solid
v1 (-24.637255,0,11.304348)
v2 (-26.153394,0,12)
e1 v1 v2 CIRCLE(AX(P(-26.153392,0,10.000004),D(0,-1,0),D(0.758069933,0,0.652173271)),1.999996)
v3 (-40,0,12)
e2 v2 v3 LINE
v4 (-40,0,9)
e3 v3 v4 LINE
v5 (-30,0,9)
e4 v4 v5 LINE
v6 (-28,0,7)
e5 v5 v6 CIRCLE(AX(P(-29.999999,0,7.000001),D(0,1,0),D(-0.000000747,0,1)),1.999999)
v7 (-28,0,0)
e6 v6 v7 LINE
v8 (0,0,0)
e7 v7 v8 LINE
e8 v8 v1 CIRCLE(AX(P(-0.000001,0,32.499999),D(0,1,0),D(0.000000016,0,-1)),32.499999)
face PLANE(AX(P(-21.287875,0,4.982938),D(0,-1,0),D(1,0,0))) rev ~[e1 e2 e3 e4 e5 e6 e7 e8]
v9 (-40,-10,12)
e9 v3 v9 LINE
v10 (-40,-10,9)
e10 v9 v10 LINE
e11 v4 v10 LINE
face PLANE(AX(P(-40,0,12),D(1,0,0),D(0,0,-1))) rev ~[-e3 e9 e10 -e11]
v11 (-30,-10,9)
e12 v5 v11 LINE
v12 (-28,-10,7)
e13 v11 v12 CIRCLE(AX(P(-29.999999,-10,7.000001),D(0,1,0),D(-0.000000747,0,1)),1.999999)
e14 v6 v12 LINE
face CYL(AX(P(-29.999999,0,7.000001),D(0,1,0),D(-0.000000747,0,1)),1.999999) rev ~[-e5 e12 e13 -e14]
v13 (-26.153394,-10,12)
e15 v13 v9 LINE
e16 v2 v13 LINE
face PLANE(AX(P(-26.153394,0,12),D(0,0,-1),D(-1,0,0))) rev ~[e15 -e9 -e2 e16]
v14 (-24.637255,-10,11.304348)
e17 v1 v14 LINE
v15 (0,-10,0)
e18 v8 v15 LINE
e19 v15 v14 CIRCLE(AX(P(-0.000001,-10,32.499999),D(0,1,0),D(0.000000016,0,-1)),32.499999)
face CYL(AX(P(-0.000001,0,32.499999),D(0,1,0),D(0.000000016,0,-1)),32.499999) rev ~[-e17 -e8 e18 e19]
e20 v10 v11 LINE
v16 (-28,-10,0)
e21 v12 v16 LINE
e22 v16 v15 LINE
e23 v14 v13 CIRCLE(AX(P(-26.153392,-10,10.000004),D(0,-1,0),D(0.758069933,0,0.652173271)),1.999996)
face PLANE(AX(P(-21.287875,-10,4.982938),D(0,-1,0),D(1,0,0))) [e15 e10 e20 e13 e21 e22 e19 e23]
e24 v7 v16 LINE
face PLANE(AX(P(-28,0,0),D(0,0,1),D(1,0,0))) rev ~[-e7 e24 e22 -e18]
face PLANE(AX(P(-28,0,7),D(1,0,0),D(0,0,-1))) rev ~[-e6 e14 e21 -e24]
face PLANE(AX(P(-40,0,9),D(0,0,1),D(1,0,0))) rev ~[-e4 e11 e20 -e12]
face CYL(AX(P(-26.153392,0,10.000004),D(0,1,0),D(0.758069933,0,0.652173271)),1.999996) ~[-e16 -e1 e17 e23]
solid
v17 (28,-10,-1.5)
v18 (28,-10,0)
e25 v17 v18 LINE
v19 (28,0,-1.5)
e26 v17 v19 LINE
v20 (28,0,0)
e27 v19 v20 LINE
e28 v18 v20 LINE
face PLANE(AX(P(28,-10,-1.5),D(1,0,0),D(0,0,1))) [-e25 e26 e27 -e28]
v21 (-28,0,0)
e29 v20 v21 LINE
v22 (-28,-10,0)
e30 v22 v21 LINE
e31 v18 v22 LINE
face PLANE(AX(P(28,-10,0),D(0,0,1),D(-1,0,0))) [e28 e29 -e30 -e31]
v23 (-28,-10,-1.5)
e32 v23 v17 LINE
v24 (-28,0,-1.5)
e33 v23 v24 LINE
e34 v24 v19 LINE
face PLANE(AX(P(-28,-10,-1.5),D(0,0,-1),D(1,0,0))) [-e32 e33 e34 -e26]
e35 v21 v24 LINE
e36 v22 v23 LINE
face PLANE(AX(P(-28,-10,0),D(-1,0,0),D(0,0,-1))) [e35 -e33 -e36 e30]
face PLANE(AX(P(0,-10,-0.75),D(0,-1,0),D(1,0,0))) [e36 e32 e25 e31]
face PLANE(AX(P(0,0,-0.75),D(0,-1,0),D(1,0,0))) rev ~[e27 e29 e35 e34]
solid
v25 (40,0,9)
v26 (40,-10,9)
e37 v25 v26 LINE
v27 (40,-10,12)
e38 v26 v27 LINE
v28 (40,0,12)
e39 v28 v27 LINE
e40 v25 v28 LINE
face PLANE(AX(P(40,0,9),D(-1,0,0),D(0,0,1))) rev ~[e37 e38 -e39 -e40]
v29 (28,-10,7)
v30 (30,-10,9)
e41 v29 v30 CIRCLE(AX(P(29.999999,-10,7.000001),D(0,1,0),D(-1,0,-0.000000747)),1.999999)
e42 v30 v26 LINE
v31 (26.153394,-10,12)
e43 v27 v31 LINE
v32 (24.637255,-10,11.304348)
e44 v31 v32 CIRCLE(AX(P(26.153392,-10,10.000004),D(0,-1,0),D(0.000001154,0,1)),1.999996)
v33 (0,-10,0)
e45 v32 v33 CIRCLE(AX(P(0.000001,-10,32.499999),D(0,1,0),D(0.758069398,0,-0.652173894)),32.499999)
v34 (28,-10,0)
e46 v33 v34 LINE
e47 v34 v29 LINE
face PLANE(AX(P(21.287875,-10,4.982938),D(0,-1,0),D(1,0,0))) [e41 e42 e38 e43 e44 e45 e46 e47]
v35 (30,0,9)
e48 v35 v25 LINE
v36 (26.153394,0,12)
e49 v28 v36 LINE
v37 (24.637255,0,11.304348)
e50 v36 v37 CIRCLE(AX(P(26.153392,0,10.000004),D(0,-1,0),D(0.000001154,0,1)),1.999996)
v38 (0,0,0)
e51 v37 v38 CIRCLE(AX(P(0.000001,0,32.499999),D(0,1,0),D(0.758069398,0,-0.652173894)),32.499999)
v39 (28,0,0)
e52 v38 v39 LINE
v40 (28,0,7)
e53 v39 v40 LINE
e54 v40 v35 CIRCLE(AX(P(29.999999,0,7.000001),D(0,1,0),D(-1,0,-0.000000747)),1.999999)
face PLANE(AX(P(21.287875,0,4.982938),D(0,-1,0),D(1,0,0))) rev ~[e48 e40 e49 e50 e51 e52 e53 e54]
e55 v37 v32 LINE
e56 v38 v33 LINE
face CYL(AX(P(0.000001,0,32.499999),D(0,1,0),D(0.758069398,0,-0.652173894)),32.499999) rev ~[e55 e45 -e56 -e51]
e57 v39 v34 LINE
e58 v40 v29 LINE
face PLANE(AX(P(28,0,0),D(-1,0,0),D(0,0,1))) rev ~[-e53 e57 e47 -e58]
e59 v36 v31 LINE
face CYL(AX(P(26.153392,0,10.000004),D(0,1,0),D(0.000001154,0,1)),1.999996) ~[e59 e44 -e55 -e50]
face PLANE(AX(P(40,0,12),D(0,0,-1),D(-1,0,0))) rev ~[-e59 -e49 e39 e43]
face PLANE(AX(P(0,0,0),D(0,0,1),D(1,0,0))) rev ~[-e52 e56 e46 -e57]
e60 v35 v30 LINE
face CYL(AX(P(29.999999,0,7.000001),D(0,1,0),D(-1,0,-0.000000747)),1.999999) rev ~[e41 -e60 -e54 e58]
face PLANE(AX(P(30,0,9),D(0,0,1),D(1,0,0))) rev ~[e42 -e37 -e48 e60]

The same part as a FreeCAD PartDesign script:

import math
import FreeCAD as App
import Part
import Sketcher
from FreeCAD import Vector
Q = App.Units.Quantity


def add_polygon(sketch, points):
    """Adds a closed chain of lines whose ends are joined by coincident constraints."""
    first, n = sketch.GeometryCount, len(points)
    for a, b in zip(points, points[1:] + points[:1]):
        sketch.addGeometry(Part.LineSegment(App.Vector(*a, 0), App.Vector(*b, 0)), False)
    for i in range(n):
        sketch.addConstraint(Sketcher.Constraint("Coincident", first + i, 2, first + (i + 1) % n, 1))

doc = App.newDocument("Part")
params = doc.addObject("Spreadsheet::Sheet", "Params")
for row, (alias, value) in enumerate([
    ("sketch1_radius", "1.999999 mm"),
    ("sketch1_radius2", "32.499999 mm"),
    ("sketch1_width", "10 mm"),
    ("sketch1_width2", "28 mm"),
    ("sketch1_height", "3 mm"),
    ("pad1_length", "10 mm"),
    ("sketch2_width", "56 mm"),
    ("sketch2_height", "1.5 mm"),
    ("pad2_length", "10 mm"),
], start=1):
    params.set(f"A{row}", alias)
    params.set(f"B{row}", "=" + value)
    params.setAlias(f"B{row}", alias)

body = doc.addObject("PartDesign::Body", "Body")
body.AllowCompound = True

sketch1 = body.newObject("Sketcher::SketchObject", "Sketch")
sketch1.AttachmentSupport = (doc.getObject("XZ_Plane"), [""])
sketch1.MapMode = "FlatFace"
sketch1.addGeometry(Part.LineSegment(Vector(-26.153394, 12, 0), Vector(-40, 12, 0)), False)
sketch1.addGeometry(Part.LineSegment(Vector(-40, 12, 0), Vector(-40, 9, 0)), False)
sketch1.addGeometry(Part.LineSegment(Vector(-40, 9, 0), Vector(-30, 9, 0)), False)
sketch1.addGeometry(Part.ArcOfCircle(Part.Circle(Vector(-29.999999, 7.000001, 0), Vector(0, 0, 1), 1.999999), math.radians(-0.000043), math.radians(90.000043)), False)
sketch1.addGeometry(Part.LineSegment(Vector(-28, 7, 0), Vector(-28, 0, 0)), False)
sketch1.addGeometry(Part.LineSegment(Vector(-28, 0, 0), Vector(0, 0, 0)), False)
sketch1.addGeometry(Part.ArcOfCircle(Part.Circle(Vector(-0.000001, 32.499999, 0), Vector(0, 0, 1), 32.499999), math.radians(-139.294295), math.radians(-89.999999)), False)
sketch1.addGeometry(Part.ArcOfCircle(Part.Circle(Vector(-26.153392, 10.000004, 0), Vector(0, 0, 1), 1.999996), math.radians(40.705658), math.radians(90.000066)), False)
sketch1.addGeometry(Part.LineSegment(Vector(40, 9, 0), Vector(40, 12, 0)), False)
sketch1.addGeometry(Part.LineSegment(Vector(40, 12, 0), Vector(26.153394, 12, 0)), False)
sketch1.addGeometry(Part.ArcOfCircle(Part.Circle(Vector(26.153392, 10.000004, 0), Vector(0, 0, 1), 1.999996), math.radians(89.999934), math.radians(139.294342)), False)
sketch1.addGeometry(Part.ArcOfCircle(Part.Circle(Vector(0.000001, 32.499999, 0), Vector(0, 0, 1), 32.499999), math.radians(-90.000001), math.radians(-40.705705)), False)
sketch1.addGeometry(Part.LineSegment(Vector(0, 0, 0), Vector(28, 0, 0)), False)
sketch1.addGeometry(Part.LineSegment(Vector(28, 0, 0), Vector(28, 7, 0)), False)
sketch1.addGeometry(Part.ArcOfCircle(Part.Circle(Vector(29.999999, 7.000001, 0), Vector(0, 0, 1), 1.999999), math.radians(89.999957), math.radians(180.000043)), False)
sketch1.addGeometry(Part.LineSegment(Vector(30, 9, 0), Vector(40, 9, 0)), False)
sketch1.addConstraint(Sketcher.Constraint("Coincident", 0, 2, 1, 1))
sketch1.addConstraint(Sketcher.Constraint("Coincident", 1, 2, 2, 1))
sketch1.addConstraint(Sketcher.Constraint("Tangent", 2, 2, 3, 2))
sketch1.addConstraint(Sketcher.Constraint("Tangent", 3, 1, 4, 1))
sketch1.addConstraint(Sketcher.Constraint("Coincident", 4, 2, 5, 1))
sketch1.addConstraint(Sketcher.Constraint("Tangent", 5, 2, 6, 2))
sketch1.addConstraint(Sketcher.Constraint("Tangent", 6, 1, 7, 1))
sketch1.addConstraint(Sketcher.Constraint("Tangent", 7, 2, 0, 1))
sketch1.addConstraint(Sketcher.Constraint("Coincident", 8, 2, 9, 1))
sketch1.addConstraint(Sketcher.Constraint("Tangent", 9, 2, 10, 1))
sketch1.addConstraint(Sketcher.Constraint("Tangent", 10, 2, 11, 2))
sketch1.addConstraint(Sketcher.Constraint("Tangent", 11, 1, 12, 1))
sketch1.addConstraint(Sketcher.Constraint("Coincident", 12, 2, 13, 1))
sketch1.addConstraint(Sketcher.Constraint("Tangent", 13, 2, 14, 2))
sketch1.addConstraint(Sketcher.Constraint("Tangent", 14, 1, 15, 1))
sketch1.addConstraint(Sketcher.Constraint("Coincident", 15, 2, 8, 1))
sketch1.addConstraint(Sketcher.Constraint("Horizontal", 0))
sketch1.addConstraint(Sketcher.Constraint("Vertical", 1))
sketch1.addConstraint(Sketcher.Constraint("Horizontal", 2))
sketch1.addConstraint(Sketcher.Constraint("Vertical", 4))
sketch1.addConstraint(Sketcher.Constraint("Horizontal", 5))
sketch1.addConstraint(Sketcher.Constraint("Vertical", 8))
sketch1.addConstraint(Sketcher.Constraint("Horizontal", 9))
sketch1.addConstraint(Sketcher.Constraint("Horizontal", 12))
sketch1.addConstraint(Sketcher.Constraint("Vertical", 13))
sketch1.addConstraint(Sketcher.Constraint("Horizontal", 15))
sketch1.addConstraint(Sketcher.Constraint("Coincident", 5, 2, -1, 1))
sketch1.addConstraint(Sketcher.Constraint("Coincident", 11, 1, -1, 1))
sketch1.addConstraint(Sketcher.Constraint("Equal", 7, 10))
sketch1.addConstraint(Sketcher.Constraint("Equal", 6, 11))
sketch1.addConstraint(Sketcher.Constraint("Equal", 3, 14))
sketch1.addConstraint(Sketcher.Constraint("Symmetric", 3, 3, 14, 3, -2))
sketch1.addConstraint(Sketcher.Constraint("Symmetric", 0, 2, 8, 2, -2))
sketch1.addConstraint(Sketcher.Constraint("Radius", 3, Q("1.999999 mm")))
sketch1.addConstraint(Sketcher.Constraint("Radius", 6, Q("32.499999 mm")))
sketch1.addConstraint(Sketcher.Constraint("DistanceX", 2, 1, 2, 2, Q("10 mm")))
sketch1.addConstraint(Sketcher.Constraint("DistanceX", 5, 1, 5, 2, Q("28 mm")))
sketch1.addConstraint(Sketcher.Constraint("DistanceY", 1, 2, 1, 1, Q("3 mm")))
sketch1.addConstraint(Sketcher.Constraint("DistanceY", 4, 2, 4, 1, Q("7 mm")))
sketch1.addConstraint(Sketcher.Constraint("Radius", 7, Q("1.999996 mm")))
sketch1.setExpression("Constraints[33]", "Params.sketch1_radius")
sketch1.setExpression("Constraints[34]", "Params.sketch1_radius2")
sketch1.setExpression("Constraints[35]", "Params.sketch1_width")
sketch1.setExpression("Constraints[36]", "Params.sketch1_width2")
sketch1.setExpression("Constraints[37]", "Params.sketch1_height")
pad1 = body.newObject("PartDesign::Pad", "Pad")
pad1.Profile = sketch1
pad1.setExpression("Length", "Params.pad1_length")
body2 = doc.addObject("PartDesign::Body", "Body001")

sketch2 = body2.newObject("Sketcher::SketchObject", "Sketch001")
sketch2.AttachmentSupport = (doc.getObject("XZ_Plane001"), [""])
sketch2.MapMode = "FlatFace"
sketch2.AttachmentOffset = App.Placement(Vector(0, 0, 10), App.Rotation())
add_polygon(sketch2, [(-28, 0), (-28, -1.5), (28, -1.5), (28, 0)])
sketch2.addConstraint(Sketcher.Constraint("Vertical", 0))
sketch2.addConstraint(Sketcher.Constraint("Horizontal", 1))
sketch2.addConstraint(Sketcher.Constraint("Vertical", 2))
sketch2.addConstraint(Sketcher.Constraint("Horizontal", 3))
sketch2.addConstraint(Sketcher.Constraint("Symmetric", 2, 2, 3, 2, -1, 1))
sketch2.addConstraint(Sketcher.Constraint("DistanceX", 1, 1, 1, 2, Q("56 mm")))
sketch2.addConstraint(Sketcher.Constraint("DistanceY", 0, 2, 0, 1, Q("1.5 mm")))
sketch2.setExpression("Constraints[9]", "Params.sketch2_width")
sketch2.setExpression("Constraints[10]", "Params.sketch2_height")
pad2 = body2.newObject("PartDesign::Pad", "Pad001")
pad2.Profile = sketch2
pad2.setExpression("Length", "Params.pad2_length")
pad2.Reversed = True

doc.recompute()
